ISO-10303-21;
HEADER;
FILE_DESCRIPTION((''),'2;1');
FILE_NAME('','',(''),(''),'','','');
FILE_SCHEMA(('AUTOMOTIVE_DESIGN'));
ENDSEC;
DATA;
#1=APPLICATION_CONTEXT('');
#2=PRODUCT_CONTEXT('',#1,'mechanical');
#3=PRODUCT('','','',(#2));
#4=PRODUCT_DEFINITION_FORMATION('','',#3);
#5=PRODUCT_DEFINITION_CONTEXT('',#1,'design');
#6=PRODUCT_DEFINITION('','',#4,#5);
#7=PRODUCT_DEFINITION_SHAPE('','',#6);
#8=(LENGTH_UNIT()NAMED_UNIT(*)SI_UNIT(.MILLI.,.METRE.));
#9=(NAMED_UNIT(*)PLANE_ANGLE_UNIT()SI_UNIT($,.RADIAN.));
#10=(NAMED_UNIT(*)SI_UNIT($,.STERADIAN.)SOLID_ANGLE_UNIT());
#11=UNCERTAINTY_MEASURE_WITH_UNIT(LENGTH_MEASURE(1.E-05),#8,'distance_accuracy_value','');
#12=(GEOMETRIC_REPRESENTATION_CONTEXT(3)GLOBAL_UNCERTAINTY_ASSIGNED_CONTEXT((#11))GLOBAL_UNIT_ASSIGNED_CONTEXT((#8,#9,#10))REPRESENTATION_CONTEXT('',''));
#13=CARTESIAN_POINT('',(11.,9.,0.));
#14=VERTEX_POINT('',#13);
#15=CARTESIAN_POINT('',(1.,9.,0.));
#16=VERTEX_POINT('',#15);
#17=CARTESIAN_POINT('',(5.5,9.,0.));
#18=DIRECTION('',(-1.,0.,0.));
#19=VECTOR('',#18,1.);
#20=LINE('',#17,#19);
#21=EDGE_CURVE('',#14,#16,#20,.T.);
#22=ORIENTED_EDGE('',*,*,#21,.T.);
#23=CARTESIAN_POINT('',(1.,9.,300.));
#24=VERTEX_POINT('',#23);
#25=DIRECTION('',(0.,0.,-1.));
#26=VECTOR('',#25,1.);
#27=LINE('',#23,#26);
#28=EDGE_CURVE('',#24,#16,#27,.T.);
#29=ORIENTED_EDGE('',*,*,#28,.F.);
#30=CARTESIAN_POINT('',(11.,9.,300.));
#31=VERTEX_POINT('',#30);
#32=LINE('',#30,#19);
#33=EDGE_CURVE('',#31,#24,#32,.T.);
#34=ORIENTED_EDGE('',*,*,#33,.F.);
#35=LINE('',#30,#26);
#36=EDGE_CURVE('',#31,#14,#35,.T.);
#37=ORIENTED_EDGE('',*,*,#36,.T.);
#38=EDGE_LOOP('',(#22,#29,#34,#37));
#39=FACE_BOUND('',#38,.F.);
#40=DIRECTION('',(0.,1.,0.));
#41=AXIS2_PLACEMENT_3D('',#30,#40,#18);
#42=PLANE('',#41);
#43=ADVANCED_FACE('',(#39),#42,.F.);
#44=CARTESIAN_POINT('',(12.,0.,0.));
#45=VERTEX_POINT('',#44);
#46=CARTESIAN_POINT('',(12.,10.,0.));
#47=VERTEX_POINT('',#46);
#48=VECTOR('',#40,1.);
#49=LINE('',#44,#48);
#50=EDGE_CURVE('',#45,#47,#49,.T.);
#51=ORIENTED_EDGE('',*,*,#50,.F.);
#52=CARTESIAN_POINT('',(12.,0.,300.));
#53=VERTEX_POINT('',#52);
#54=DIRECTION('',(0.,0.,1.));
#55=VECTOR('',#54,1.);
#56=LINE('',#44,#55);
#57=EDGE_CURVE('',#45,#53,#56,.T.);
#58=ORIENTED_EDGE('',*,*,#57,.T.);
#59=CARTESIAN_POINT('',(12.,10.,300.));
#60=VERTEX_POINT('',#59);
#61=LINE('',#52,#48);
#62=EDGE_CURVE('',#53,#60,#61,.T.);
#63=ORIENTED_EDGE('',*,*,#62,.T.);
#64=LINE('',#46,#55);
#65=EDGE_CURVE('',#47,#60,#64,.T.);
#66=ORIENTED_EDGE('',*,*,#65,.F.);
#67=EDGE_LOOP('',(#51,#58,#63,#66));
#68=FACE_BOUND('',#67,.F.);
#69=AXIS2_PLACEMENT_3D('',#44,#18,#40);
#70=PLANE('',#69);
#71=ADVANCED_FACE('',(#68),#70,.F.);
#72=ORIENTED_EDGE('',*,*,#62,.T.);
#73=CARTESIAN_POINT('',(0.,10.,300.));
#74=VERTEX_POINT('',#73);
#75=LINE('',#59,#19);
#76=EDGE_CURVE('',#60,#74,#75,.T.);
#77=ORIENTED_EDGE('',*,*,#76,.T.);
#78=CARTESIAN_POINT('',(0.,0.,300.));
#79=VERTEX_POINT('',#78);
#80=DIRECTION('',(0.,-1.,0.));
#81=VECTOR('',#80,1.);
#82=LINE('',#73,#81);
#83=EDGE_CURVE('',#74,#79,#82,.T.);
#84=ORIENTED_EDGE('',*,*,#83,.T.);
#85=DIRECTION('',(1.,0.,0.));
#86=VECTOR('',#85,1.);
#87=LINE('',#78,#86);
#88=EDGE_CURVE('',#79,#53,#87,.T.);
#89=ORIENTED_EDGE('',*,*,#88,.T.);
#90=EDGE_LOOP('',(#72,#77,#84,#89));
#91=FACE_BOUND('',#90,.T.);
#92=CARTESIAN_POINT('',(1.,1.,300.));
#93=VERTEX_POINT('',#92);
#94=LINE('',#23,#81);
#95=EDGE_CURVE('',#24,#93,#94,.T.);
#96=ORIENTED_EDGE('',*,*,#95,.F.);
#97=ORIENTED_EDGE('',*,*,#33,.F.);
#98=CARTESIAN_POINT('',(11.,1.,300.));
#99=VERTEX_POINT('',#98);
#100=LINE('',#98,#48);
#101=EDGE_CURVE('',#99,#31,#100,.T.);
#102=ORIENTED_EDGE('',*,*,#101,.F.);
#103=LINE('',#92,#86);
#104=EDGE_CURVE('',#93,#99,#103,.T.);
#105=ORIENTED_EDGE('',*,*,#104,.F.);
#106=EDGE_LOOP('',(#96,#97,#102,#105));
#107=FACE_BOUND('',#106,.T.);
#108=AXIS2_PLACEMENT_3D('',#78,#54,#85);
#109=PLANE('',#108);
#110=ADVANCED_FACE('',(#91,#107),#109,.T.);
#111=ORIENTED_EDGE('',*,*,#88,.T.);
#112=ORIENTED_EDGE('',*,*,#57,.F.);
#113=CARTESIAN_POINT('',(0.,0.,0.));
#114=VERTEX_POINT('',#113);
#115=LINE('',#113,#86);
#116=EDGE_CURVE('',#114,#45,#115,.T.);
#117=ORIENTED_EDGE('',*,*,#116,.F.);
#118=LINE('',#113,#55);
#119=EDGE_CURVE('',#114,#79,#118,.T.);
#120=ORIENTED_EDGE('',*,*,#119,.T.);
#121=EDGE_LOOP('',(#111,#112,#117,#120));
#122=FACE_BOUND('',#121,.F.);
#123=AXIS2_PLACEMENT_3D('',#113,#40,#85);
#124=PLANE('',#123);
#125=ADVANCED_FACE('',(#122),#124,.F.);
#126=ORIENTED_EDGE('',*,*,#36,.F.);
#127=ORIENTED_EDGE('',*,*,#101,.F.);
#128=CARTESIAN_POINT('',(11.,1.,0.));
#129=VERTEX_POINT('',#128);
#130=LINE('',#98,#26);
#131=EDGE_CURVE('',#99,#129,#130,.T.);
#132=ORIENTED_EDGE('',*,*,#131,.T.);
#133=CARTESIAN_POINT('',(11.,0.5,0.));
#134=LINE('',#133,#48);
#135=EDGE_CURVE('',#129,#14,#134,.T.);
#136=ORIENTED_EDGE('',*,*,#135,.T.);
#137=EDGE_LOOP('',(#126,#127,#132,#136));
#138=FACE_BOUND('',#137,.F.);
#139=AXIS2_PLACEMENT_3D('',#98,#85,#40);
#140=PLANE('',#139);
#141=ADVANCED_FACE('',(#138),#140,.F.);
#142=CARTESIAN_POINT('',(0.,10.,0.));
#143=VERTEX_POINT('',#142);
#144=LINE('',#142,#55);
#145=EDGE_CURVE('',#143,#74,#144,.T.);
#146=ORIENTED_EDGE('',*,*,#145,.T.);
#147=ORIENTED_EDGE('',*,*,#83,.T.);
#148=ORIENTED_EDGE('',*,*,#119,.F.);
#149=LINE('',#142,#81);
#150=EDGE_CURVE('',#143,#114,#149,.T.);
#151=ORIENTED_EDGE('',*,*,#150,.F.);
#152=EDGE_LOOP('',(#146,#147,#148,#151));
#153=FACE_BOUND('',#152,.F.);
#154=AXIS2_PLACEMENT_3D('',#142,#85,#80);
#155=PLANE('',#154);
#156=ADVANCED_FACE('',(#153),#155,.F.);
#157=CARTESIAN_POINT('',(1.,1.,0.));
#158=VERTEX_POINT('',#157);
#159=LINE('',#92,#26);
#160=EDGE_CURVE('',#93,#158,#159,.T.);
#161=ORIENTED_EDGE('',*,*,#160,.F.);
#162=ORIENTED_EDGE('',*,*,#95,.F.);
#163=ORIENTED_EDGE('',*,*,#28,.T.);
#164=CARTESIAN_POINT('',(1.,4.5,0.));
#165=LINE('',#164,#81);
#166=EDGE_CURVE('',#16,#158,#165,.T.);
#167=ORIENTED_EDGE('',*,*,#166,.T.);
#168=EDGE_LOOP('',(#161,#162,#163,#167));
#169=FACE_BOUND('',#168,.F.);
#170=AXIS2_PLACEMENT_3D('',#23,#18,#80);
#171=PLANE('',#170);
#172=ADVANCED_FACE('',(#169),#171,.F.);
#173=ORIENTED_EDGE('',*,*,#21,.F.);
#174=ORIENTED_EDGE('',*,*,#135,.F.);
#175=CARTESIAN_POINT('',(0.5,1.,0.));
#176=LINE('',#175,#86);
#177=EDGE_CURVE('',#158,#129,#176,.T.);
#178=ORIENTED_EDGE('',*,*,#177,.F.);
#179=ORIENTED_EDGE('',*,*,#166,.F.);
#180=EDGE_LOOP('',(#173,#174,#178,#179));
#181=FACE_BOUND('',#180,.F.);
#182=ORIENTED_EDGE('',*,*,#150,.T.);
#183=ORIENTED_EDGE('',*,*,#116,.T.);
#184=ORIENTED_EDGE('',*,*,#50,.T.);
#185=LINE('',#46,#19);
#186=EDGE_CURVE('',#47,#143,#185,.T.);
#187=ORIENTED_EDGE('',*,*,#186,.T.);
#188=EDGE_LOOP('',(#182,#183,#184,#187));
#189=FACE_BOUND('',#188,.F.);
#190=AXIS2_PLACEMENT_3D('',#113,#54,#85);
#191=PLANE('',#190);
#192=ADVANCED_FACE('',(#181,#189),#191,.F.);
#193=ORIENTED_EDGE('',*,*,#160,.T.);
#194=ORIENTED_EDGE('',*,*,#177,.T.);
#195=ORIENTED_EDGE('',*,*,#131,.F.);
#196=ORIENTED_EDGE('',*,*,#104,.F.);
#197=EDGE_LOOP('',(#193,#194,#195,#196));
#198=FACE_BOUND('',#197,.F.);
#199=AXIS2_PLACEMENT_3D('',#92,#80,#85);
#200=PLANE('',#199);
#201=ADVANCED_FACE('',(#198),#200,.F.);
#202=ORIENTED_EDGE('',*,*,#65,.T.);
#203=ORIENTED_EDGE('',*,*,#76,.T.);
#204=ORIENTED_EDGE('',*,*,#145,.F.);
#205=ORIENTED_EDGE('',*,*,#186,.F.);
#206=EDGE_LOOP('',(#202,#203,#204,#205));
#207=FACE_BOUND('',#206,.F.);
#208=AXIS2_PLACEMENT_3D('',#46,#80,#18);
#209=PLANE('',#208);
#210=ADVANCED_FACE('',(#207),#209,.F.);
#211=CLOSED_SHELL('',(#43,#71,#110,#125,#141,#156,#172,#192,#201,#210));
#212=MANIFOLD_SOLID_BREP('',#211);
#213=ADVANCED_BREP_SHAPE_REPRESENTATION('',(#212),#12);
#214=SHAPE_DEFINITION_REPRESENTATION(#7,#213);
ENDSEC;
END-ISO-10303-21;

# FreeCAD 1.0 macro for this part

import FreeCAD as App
import Part
import Sketcher
from FreeCAD import Vector
Q = App.Units.Quantity


def add_polygon(sketch, points):
    """Adds a closed chain of lines whose ends are joined by coincident constraints."""
    first, n = sketch.GeometryCount, len(points)
    for a, b in zip(points, points[1:] + points[:1]):
        sketch.addGeometry(Part.LineSegment(App.Vector(*a, 0), App.Vector(*b, 0)), False)
    for i in range(n):
        sketch.addConstraint(Sketcher.Constraint("Coincident", first + i, 2, first + (i + 1) % n, 1))

doc = App.newDocument("Part")
params = doc.addObject("Spreadsheet::Sheet", "Params")
for row, (alias, value) in enumerate([
    ("sketch1_width", "12 mm"),
    ("sketch1_height", "10 mm"),
    ("pad1_length", "300 mm"),
    ("sketch2_width", "10 mm"),
    ("sketch2_height", "8 mm"),
], start=1):
    params.set(f"A{row}", alias)
    params.set(f"B{row}", "=" + value)
    params.setAlias(f"B{row}", alias)

body = doc.addObject("PartDesign::Body", "Body")

# Sketch on XY plane
sketch1 = body.newObject("Sketcher::SketchObject", "Sketch")
sketch1.AttachmentSupport = (doc.getObject("XY_Plane"), [""])
sketch1.MapMode = "FlatFace"
add_polygon(sketch1, [(0, 10), (0, 0), (12, 0), (12, 10)])  # lines 0-3
sketch1.addConstraint(Sketcher.Constraint("Vertical", 0))
sketch1.addConstraint(Sketcher.Constraint("Horizontal", 1))
sketch1.addConstraint(Sketcher.Constraint("Vertical", 2))
sketch1.addConstraint(Sketcher.Constraint("Horizontal", 3))
sketch1.addConstraint(Sketcher.Constraint("Coincident", 0, 2, -1, 1))
sketch1.addConstraint(Sketcher.Constraint("DistanceX", 1, 1, 1, 2, Q("12 mm")))
sketch1.addConstraint(Sketcher.Constraint("DistanceY", 0, 2, 0, 1, Q("10 mm")))
sketch1.setExpression("Constraints[9]", "Params.sketch1_width")
sketch1.setExpression("Constraints[10]", "Params.sketch1_height")
pad1 = body.newObject("PartDesign::Pad", "Pad")
pad1.Profile = sketch1
pad1.setExpression("Length", "Params.pad1_length")

# Sketch on XY plane
sketch2 = body.newObject("Sketcher::SketchObject", "Sketch001")
sketch2.AttachmentSupport = (doc.getObject("XY_Plane"), [""])
sketch2.MapMode = "FlatFace"
sketch2.AttachmentOffset = App.Placement(Vector(0, 0, 300), App.Rotation())
add_polygon(sketch2, [(1, 9), (1, 1), (11, 1), (11, 9)])  # lines 0-3
sketch2.addConstraint(Sketcher.Constraint("Vertical", 0))
sketch2.addConstraint(Sketcher.Constraint("Horizontal", 1))
sketch2.addConstraint(Sketcher.Constraint("Vertical", 2))
sketch2.addConstraint(Sketcher.Constraint("Horizontal", 3))
sketch2.addConstraint(Sketcher.Constraint("DistanceX", 1, 1, 1, 2, Q("10 mm")))
sketch2.addConstraint(Sketcher.Constraint("DistanceY", 0, 2, 0, 1, Q("8 mm")))
sketch2.addConstraint(Sketcher.Constraint("DistanceX", -1, 1, 0, 2, Q("1 mm")))
sketch2.addConstraint(Sketcher.Constraint("DistanceY", -1, 1, 0, 2, Q("1 mm")))
sketch2.setExpression("Constraints[8]", "Params.sketch2_width")
sketch2.setExpression("Constraints[9]", "Params.sketch2_height")
pocket1 = body.newObject("PartDesign::Pocket", "Pocket")
pocket1.Profile = sketch2
pocket1.Type = "ThroughAll"

doc.recompute()
